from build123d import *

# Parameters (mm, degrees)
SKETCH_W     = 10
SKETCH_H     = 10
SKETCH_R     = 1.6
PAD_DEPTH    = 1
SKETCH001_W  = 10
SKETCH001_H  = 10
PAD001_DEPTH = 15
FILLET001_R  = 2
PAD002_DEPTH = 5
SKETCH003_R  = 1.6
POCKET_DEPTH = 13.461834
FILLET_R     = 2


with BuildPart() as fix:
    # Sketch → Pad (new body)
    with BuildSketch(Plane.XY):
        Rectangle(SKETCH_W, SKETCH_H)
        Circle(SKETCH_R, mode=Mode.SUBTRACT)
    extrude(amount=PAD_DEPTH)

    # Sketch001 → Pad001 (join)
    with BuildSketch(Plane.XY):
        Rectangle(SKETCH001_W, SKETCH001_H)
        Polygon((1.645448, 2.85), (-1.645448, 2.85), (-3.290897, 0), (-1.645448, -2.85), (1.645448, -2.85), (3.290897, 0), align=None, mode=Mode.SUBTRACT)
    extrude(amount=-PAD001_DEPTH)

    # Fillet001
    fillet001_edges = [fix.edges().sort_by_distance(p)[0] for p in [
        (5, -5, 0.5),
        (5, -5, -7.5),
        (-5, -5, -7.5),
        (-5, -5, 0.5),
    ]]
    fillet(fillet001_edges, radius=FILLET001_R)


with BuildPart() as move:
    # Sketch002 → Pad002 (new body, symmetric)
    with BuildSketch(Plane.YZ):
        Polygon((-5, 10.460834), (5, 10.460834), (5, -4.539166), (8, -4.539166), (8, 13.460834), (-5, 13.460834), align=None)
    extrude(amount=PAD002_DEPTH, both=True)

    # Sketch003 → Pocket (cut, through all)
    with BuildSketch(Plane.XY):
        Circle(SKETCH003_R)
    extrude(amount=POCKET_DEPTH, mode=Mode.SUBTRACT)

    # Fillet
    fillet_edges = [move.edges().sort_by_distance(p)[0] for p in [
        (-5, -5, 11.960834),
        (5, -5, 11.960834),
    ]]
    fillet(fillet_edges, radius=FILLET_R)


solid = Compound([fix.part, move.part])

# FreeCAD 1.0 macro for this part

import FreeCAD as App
import Part
import Sketcher
from FreeCAD import Vector
Q = App.Units.Quantity


def edges_at(feature, points):
    """Names of the edges that pass closest to the given points."""
    edges = feature.Shape.Edges
    near = lambda p: min(range(len(edges)), key=lambda i: edges[i].distToShape(Part.Vertex(*p))[0])
    return sorted({f"Edge{near(p) + 1}" for p in points})

doc = App.newDocument("Part")
body = doc.addObject("PartDesign::Body", "Body")

# Sketch on XY plane
sketch1 = body.newObject("Sketcher::SketchObject", "Sketch")
sketch1.AttachmentSupport = (doc.getObject("XY_Plane"), [""])
sketch1.MapMode = "FlatFace"
sketch1.addGeometry([
    Part.LineSegment(Vector(-5, 5, 0), Vector(-5, -5, 0)),  # 0
    Part.LineSegment(Vector(-5, -5, 0), Vector(5, -5, 0)),  # 1
    Part.LineSegment(Vector(5, -5, 0), Vector(5, 5, 0)),  # 2
    Part.LineSegment(Vector(5, 5, 0), Vector(-5, 5, 0)),  # 3
    Part.Circle(Vector(0, 0, 0), Vector(0, 0, 1), 1.6),  # 4
], False)
sketch1.addConstraint([
    Sketcher.Constraint("Coincident", 0, 2, 1, 1),
    Sketcher.Constraint("Coincident", 1, 2, 2, 1),
    Sketcher.Constraint("Coincident", 2, 2, 3, 1),
    Sketcher.Constraint("Coincident", 3, 2, 0, 1),
    Sketcher.Constraint("Vertical", 0),
    Sketcher.Constraint("Horizontal", 1),
    Sketcher.Constraint("Vertical", 2),
    Sketcher.Constraint("Horizontal", 3),
    Sketcher.Constraint("Coincident", 4, 3, -1, 1),
    Sketcher.Constraint("Symmetric", 0, 2, 2, 2, -1, 1),
    Sketcher.Constraint("Equal", 3, 0),
    Sketcher.Constraint("Diameter", 4, 3.2),
    Sketcher.Constraint("DistanceX", 1, 1, 1, 2, 10.0),
])
pad1 = body.newObject("PartDesign::Pad", "Pad")
pad1.Profile = sketch1
pad1.Length = 1

# Sketch on XY plane
sketch2 = body.newObject("Sketcher::SketchObject", "Sketch001")
sketch2.AttachmentSupport = (doc.getObject("XY_Plane"), [""])
sketch2.MapMode = "FlatFace"
sketch2.addGeometry([
    Part.LineSegment(Vector(-5, 5, 0), Vector(-5, -5, 0)),  # 0
    Part.LineSegment(Vector(-5, -5, 0), Vector(5, -5, 0)),  # 1
    Part.LineSegment(Vector(5, -5, 0), Vector(5, 5, 0)),  # 2
    Part.LineSegment(Vector(5, 5, 0), Vector(-5, 5, 0)),  # 3
    Part.LineSegment(Vector(-1.645448, 2.85, 0), Vector(1.645448, 2.85, 0)),  # 4
    Part.LineSegment(Vector(1.645448, 2.85, 0), Vector(3.290897, 0, 0)),  # 5
    Part.LineSegment(Vector(3.290897, 0, 0), Vector(1.645448, -2.85, 0)),  # 6
    Part.LineSegment(Vector(1.645448, -2.85, 0), Vector(-1.645448, -2.85, 0)),  # 7
    Part.LineSegment(Vector(-1.645448, -2.85, 0), Vector(-3.290897, 0, 0)),  # 8
    Part.LineSegment(Vector(-3.290897, 0, 0), Vector(-1.645448, 2.85, 0)),  # 9
], False)
sketch2.addConstraint([
    Sketcher.Constraint("Coincident", 0, 2, 1, 1),
    Sketcher.Constraint("Coincident", 1, 2, 2, 1),
    Sketcher.Constraint("Coincident", 2, 2, 3, 1),
    Sketcher.Constraint("Coincident", 3, 2, 0, 1),
    Sketcher.Constraint("Coincident", 4, 2, 5, 1),
    Sketcher.Constraint("Coincident", 5, 2, 6, 1),
    Sketcher.Constraint("Coincident", 6, 2, 7, 1),
    Sketcher.Constraint("Coincident", 7, 2, 8, 1),
    Sketcher.Constraint("Coincident", 8, 2, 9, 1),
    Sketcher.Constraint("Coincident", 9, 2, 4, 1),
    Sketcher.Constraint("Vertical", 0),
    Sketcher.Constraint("Horizontal", 1),
    Sketcher.Constraint("Vertical", 2),
    Sketcher.Constraint("Horizontal", 3),
    Sketcher.Constraint("Horizontal", 4),
    Sketcher.Constraint("Horizontal", 7),
    Sketcher.Constraint("Symmetric", 0, 2, 2, 2, -1, 1),
    Sketcher.Constraint("Symmetric", 4, 2, 7, 2, -1, 1),
    Sketcher.Constraint("Symmetric", 5, 2, 8, 2, -1, 1),
    Sketcher.Constraint("PointOnObject", 5, 2, -1),
    Sketcher.Constraint("Parallel", 6, 9),
    Sketcher.Constraint("Vertical", 4, 2, 6, 2),
    Sketcher.Constraint("Equal", 3, 0),
    Sketcher.Constraint("DistanceX", 1, 1, 1, 2, 10.0),
    Sketcher.Constraint("Angle", 5, Q("-59.999989 deg")),
    Sketcher.Constraint("DistanceY", 6, 2, 4, 2, 5.7),
    Sketcher.Constraint("DistanceX", 4, 1, 4, 2, 3.290896),
])
pad2 = body.newObject("PartDesign::Pad", "Pad001")
pad2.Profile = sketch2
pad2.Length = 15
pad2.Reversed = True
doc.recompute()

fillet = body.newObject("PartDesign::Fillet", "Fillet")
fillet.Base = (pad2, edges_at(pad2, [
    (5, -5, -7),
    (5, -5, -7),
    (-5, -5, -7),
    (-5, -5, -7),
]))
fillet.Radius = 2
body2 = doc.addObject("PartDesign::Body", "Body001")

# Sketch on YZ plane
sketch3 = body2.newObject("Sketcher::SketchObject", "Sketch002")
sketch3.AttachmentSupport = (doc.getObject("YZ_Plane001"), [""])
sketch3.MapMode = "FlatFace"
sketch3.addGeometry([
    Part.LineSegment(Vector(-5, 10.460834, 0), Vector(5, 10.460834, 0)),  # 0
    Part.LineSegment(Vector(5, 10.460834, 0), Vector(5, -4.539166, 0)),  # 1
    Part.LineSegment(Vector(5, -4.539166, 0), Vector(8, -4.539166, 0)),  # 2
    Part.LineSegment(Vector(8, -4.539166, 0), Vector(8, 13.460834, 0)),  # 3
    Part.LineSegment(Vector(8, 13.460834, 0), Vector(-5, 13.460834, 0)),  # 4
    Part.LineSegment(Vector(-5, 13.460834, 0), Vector(-5, 10.460834, 0)),  # 5
], False)
sketch3.addConstraint([
    Sketcher.Constraint("Coincident", 0, 2, 1, 1),
    Sketcher.Constraint("Coincident", 1, 2, 2, 1),
    Sketcher.Constraint("Coincident", 2, 2, 3, 1),
    Sketcher.Constraint("Coincident", 3, 2, 4, 1),
    Sketcher.Constraint("Coincident", 4, 2, 5, 1),
    Sketcher.Constraint("Coincident", 5, 2, 0, 1),
    Sketcher.Constraint("Horizontal", 0),
    Sketcher.Constraint("Vertical", 1),
    Sketcher.Constraint("Horizontal", 2),
    Sketcher.Constraint("Vertical", 3),
    Sketcher.Constraint("Horizontal", 4),
    Sketcher.Constraint("Vertical", 5),
    Sketcher.Constraint("Equal", 2, 5),
    Sketcher.Constraint("DistanceX", 0, 1, 0, 2, 10.0),
    Sketcher.Constraint("DistanceX", 2, 1, 2, 2, 3.0),
    Sketcher.Constraint("DistanceY", 1, 2, 1, 1, 15.0),
    Sketcher.Constraint("DistanceX", -1, 1, 0, 2, 5.0),
    Sketcher.Constraint("DistanceY", -1, 1, 0, 2, 10.460834),
])
pad3 = body2.newObject("PartDesign::Pad", "Pad002")
pad3.Profile = sketch3
pad3.Length = 10
pad3.Midplane = True

# Sketch on XY plane
sketch4 = body2.newObject("Sketcher::SketchObject", "Sketch003")
sketch4.AttachmentSupport = (doc.getObject("XY_Plane001"), [""])
sketch4.MapMode = "FlatFace"
sketch4.addGeometry(Part.Circle(Vector(0, 0, 0), Vector(0, 0, 1), 1.6), False)
sketch4.addConstraint([
    Sketcher.Constraint("Coincident", 0, 3, -1, 1),
    Sketcher.Constraint("Diameter", 0, 3.2),
])
pocket1 = body2.newObject("PartDesign::Pocket", "Pocket")
pocket1.Profile = sketch4
pocket1.Type = "ThroughAll"
pocket1.Reversed = True
doc.recompute()

fillet2 = body2.newObject("PartDesign::Fillet", "Fillet001")
fillet2.Base = (pocket1, edges_at(pocket1, [(-5, -5, 11.961), (5, -5, 11.961)]))
fillet2.Radius = 2

doc.recompute()
